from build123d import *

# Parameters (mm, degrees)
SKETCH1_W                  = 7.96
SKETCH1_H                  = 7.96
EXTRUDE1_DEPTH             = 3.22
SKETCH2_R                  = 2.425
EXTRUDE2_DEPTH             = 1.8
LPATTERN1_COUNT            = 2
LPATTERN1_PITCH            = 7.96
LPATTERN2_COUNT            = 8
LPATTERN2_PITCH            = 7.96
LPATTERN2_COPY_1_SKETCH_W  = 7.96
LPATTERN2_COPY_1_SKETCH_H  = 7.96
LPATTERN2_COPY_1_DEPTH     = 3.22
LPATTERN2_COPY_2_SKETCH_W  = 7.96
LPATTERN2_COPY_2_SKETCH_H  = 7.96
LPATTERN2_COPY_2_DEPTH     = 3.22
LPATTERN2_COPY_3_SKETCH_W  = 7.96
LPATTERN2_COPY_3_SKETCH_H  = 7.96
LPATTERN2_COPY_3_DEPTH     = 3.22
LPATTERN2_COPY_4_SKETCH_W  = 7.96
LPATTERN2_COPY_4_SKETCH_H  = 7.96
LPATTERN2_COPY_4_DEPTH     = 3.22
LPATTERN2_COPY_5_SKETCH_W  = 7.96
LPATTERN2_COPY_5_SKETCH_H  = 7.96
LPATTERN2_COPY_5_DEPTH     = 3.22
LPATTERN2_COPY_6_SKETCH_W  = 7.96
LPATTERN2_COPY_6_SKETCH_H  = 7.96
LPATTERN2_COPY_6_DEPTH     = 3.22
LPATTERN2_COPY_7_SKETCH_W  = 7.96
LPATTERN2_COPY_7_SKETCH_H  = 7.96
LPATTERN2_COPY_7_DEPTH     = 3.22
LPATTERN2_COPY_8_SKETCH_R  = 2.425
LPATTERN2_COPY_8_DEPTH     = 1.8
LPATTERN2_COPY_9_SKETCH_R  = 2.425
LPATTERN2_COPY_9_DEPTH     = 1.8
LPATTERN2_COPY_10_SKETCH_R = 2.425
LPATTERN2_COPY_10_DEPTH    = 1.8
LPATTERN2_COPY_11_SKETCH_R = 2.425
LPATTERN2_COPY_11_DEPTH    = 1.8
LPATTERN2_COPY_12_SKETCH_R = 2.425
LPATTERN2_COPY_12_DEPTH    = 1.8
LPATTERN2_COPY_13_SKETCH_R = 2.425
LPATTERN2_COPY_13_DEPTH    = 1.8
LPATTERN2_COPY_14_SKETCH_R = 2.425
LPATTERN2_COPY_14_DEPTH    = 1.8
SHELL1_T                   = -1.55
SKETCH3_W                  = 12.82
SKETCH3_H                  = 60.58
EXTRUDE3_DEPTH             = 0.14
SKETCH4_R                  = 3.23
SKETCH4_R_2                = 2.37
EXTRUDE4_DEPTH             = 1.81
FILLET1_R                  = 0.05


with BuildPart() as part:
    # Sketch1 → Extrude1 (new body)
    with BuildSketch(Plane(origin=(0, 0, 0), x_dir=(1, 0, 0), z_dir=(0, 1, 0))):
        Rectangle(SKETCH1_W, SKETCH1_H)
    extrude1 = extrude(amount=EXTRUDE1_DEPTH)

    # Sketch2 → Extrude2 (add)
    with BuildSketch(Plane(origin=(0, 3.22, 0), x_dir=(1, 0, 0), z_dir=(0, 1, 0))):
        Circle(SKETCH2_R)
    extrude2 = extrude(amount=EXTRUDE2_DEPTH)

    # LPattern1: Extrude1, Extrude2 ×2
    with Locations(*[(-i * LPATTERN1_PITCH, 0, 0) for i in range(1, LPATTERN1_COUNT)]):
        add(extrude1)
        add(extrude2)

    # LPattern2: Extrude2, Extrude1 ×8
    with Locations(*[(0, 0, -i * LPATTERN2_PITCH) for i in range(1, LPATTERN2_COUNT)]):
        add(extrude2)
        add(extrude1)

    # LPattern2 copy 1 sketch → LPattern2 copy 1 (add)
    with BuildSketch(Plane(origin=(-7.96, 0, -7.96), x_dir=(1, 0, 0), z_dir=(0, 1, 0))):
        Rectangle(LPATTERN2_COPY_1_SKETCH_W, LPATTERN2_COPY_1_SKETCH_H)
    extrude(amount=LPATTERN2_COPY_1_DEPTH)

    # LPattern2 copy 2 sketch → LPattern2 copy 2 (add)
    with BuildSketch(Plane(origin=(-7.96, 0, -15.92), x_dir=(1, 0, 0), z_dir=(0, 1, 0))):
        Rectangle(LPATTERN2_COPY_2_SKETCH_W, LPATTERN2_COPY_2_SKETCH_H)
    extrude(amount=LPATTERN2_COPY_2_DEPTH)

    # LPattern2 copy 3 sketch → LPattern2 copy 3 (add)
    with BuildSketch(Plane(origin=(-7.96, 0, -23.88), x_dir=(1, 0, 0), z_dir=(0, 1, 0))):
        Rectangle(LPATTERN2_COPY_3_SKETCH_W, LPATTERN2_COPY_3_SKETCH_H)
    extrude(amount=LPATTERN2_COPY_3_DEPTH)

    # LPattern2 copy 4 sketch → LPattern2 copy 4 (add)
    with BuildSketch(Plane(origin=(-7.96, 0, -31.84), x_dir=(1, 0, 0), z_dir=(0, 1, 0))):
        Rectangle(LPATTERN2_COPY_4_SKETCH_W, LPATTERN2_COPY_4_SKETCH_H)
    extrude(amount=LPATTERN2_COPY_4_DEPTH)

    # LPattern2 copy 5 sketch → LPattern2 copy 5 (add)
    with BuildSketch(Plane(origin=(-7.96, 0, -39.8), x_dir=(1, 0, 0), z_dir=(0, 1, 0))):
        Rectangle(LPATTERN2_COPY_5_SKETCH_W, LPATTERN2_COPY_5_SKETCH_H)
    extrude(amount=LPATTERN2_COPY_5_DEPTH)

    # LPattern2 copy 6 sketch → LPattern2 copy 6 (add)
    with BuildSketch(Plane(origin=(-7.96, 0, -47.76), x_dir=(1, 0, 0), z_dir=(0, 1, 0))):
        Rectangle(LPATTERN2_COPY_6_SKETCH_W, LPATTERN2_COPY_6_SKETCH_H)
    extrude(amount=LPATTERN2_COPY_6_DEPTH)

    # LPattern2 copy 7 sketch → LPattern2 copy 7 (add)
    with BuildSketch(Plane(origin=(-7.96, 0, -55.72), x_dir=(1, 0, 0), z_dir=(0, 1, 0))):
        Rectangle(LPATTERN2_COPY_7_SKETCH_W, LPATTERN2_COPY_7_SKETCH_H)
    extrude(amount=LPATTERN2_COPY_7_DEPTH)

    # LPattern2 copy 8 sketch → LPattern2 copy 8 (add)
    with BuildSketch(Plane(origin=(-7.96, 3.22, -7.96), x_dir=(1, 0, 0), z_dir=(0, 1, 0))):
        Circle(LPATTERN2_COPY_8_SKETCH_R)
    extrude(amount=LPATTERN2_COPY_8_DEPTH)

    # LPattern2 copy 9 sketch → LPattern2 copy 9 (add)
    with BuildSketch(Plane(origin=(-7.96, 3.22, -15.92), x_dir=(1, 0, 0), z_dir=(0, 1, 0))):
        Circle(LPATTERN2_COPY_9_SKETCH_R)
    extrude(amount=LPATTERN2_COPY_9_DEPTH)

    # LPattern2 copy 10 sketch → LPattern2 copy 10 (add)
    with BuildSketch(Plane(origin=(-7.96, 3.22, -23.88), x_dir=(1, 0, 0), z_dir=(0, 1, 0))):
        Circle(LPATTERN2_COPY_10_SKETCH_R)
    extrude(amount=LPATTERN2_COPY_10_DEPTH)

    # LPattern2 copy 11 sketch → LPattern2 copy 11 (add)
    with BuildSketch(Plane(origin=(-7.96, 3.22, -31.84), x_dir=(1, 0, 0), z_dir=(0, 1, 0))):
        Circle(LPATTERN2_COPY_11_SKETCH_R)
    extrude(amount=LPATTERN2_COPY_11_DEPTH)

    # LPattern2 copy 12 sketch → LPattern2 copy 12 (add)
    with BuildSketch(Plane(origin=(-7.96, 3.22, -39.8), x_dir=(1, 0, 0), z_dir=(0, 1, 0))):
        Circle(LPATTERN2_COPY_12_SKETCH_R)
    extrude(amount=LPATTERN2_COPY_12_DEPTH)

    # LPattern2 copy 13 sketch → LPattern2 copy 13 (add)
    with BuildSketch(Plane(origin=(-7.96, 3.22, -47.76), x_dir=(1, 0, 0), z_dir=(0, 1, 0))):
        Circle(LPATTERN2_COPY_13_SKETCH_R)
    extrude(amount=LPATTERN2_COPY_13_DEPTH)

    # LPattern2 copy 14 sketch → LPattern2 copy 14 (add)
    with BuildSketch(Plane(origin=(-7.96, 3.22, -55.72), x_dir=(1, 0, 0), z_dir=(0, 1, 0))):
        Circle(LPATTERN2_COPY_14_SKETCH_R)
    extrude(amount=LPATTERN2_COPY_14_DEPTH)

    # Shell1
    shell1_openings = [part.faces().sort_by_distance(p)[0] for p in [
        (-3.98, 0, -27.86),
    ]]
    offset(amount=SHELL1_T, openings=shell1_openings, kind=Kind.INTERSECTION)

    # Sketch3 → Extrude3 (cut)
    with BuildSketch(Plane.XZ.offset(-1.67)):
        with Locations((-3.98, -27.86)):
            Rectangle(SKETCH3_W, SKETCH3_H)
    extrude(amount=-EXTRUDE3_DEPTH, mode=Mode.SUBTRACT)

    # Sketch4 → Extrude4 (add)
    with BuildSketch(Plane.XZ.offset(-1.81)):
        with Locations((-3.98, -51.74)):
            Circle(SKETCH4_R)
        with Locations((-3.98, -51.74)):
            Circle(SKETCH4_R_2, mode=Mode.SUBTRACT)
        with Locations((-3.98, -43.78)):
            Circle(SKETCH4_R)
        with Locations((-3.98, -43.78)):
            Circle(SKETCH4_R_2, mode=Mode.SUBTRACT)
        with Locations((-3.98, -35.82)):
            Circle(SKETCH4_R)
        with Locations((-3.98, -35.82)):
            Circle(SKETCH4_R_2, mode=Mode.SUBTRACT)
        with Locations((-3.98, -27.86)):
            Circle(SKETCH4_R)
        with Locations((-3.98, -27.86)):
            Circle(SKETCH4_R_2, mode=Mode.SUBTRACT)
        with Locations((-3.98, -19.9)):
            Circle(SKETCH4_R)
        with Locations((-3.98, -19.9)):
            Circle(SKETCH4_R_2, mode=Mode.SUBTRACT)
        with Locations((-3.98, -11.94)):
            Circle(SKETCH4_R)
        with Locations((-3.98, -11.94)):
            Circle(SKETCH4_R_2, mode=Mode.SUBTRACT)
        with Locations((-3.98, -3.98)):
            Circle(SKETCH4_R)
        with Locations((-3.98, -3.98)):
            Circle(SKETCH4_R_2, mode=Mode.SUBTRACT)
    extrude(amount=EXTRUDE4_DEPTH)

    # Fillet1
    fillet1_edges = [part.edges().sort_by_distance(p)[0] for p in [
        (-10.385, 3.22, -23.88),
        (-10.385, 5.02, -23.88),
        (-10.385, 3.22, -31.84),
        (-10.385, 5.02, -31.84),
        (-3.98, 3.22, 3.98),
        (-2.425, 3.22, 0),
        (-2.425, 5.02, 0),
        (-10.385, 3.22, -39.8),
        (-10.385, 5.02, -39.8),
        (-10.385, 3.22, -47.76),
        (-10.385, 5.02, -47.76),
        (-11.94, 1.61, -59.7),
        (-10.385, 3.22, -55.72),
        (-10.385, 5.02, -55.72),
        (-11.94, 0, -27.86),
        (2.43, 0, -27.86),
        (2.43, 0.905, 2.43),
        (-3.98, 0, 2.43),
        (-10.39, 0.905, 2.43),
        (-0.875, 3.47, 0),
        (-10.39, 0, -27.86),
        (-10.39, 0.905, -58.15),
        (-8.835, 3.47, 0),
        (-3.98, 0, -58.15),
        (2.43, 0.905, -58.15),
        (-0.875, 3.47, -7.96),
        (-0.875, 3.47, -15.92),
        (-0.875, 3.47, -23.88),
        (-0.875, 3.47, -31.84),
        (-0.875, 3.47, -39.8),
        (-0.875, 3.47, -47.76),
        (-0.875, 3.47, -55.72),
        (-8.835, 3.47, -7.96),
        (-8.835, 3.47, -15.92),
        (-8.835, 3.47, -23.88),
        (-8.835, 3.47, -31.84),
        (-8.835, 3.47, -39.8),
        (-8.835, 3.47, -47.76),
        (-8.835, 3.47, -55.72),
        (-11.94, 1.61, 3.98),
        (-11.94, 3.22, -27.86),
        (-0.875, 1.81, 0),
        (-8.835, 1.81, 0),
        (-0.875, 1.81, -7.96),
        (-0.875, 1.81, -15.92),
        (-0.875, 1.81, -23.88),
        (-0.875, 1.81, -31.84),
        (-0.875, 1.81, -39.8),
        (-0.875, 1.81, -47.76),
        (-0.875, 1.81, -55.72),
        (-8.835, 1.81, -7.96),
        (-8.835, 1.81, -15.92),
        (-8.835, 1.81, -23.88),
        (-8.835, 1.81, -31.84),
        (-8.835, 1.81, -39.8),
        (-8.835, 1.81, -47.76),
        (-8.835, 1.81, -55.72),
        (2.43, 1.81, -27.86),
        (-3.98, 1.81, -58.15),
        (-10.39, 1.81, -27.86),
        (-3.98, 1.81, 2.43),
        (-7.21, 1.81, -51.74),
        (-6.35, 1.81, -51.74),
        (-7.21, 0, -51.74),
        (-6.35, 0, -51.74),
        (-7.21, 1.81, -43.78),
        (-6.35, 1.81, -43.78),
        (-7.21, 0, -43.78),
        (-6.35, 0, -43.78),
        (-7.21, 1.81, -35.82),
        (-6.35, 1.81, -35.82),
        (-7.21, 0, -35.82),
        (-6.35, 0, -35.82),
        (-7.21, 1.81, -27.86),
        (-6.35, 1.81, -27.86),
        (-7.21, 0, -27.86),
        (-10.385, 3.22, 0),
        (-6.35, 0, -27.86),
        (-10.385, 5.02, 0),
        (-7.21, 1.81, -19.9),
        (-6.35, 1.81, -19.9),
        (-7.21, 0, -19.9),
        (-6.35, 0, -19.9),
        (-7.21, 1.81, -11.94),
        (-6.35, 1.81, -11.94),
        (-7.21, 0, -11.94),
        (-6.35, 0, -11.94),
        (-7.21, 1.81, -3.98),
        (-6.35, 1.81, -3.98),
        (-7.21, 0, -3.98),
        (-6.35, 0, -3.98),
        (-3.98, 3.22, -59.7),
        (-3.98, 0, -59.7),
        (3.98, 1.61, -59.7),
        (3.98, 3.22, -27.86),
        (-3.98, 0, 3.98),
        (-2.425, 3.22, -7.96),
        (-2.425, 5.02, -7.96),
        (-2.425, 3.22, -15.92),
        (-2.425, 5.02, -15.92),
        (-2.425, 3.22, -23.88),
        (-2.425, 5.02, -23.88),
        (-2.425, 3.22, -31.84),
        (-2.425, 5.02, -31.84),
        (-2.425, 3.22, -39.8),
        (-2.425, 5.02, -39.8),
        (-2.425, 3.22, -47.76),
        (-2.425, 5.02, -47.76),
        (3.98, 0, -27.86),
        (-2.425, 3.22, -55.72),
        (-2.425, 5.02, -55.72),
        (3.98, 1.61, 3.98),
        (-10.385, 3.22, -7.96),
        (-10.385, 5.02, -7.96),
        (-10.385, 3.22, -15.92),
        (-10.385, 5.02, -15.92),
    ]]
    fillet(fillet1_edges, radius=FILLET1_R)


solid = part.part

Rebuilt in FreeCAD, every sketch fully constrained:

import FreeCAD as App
import Part
import Sketcher

V = App.Vector
Q = App.Units.Quantity


def faces_at(feature, points):
    """Names of the faces that lie closest to the given points."""
    faces = feature.Shape.Faces
    near = lambda p: min(range(len(faces)), key=lambda i: faces[i].distToShape(Part.Vertex(*p))[0])
    return sorted({f"Face{near(p) + 1}" for p in points})

doc = App.newDocument("Part")
params = doc.addObject("Spreadsheet::Sheet", "Params")
for row, (alias, value) in enumerate([
    ("sketch1_width", "7.96 mm"),
    ("pad1_length", "3.22 mm"),
    ("sketch2_diameter", "4.85 mm"),
    ("pad2_length", "1.8 mm"),
    ("linearpattern_pitch", "7.96 mm"),
    ("linearpattern2_pitch", "7.96 mm"),
    ("sketch3_width", "7.96 mm"),
    ("pad3_length", "3.22 mm"),
    ("sketch4_width", "7.96 mm"),
    ("pad4_length", "3.22 mm"),
    ("sketch5_width", "7.96 mm"),
    ("pad5_length", "3.22 mm"),
    ("sketch6_width", "7.96 mm"),
    ("pad6_length", "3.22 mm"),
    ("sketch7_width", "7.96 mm"),
    ("pad7_length", "3.22 mm"),
    ("sketch8_width", "7.96 mm"),
    ("pad8_length", "3.22 mm"),
    ("sketch9_width", "7.96 mm"),
    ("pad9_length", "3.22 mm"),
    ("sketch10_diameter", "4.85 mm"),
    ("pad10_length", "1.8 mm"),
    ("sketch11_diameter", "4.85 mm"),
    ("pad11_length", "1.8 mm"),
    ("sketch12_diameter", "4.85 mm"),
    ("pad12_length", "1.8 mm"),
    ("sketch13_diameter", "4.85 mm"),
    ("pad13_length", "1.8 mm"),
    ("sketch14_diameter", "4.85 mm"),
    ("pad14_length", "1.8 mm"),
    ("sketch15_diameter", "4.85 mm"),
    ("pad15_length", "1.8 mm"),
    ("sketch16_diameter", "4.85 mm"),
    ("pad16_length", "1.8 mm"),
    ("thickness_wall", "1.55 mm"),
    ("sketch17_width", "12.82 mm"),
    ("sketch17_height", "60.58 mm"),
    ("pocket1_length", "0.14 mm"),
    ("sketch18_diameter", "6.46 mm"),
    ("sketch18_diameter2", "4.74 mm"),
    ("pad17_length", "1.81 mm"),
    ("fillet_radius", "0.05 mm"),
], start=1):
    params.set(f"A{row}", alias)
    params.set(f"B{row}", "=" + value)
    params.setAlias(f"B{row}", alias)

body = doc.addObject("PartDesign::Body", "Body")

# Sketch on XZ plane
sketch1 = doc.addObject("Sketcher::SketchObject", "Sketch")
body.addObject(sketch1)
sketch1.AttachmentSupport = (doc.XZ_Plane, [""])
sketch1.MapMode = "FlatFace"
sketch1.addGeometry(Part.LineSegment(V(-4, -4, 0), V(-4, 4, 0)), False)
sketch1.addGeometry(Part.LineSegment(V(-4, 4, 0), V(4, 4, 0)), False)
sketch1.addGeometry(Part.LineSegment(V(4, 4, 0), V(4, -4, 0)), False)
sketch1.addGeometry(Part.LineSegment(V(4, -4, 0), V(-4, -4, 0)), False)
sketch1.addConstraint(Sketcher.Constraint("Coincident", 0, 2, 1, 1))
sketch1.addConstraint(Sketcher.Constraint("Coincident", 1, 2, 2, 1))
sketch1.addConstraint(Sketcher.Constraint("Coincident", 2, 2, 3, 1))
sketch1.addConstraint(Sketcher.Constraint("Coincident", 3, 2, 0, 1))
sketch1.addConstraint(Sketcher.Constraint("Vertical", 0))
sketch1.addConstraint(Sketcher.Constraint("Horizontal", 1))
sketch1.addConstraint(Sketcher.Constraint("Vertical", 2))
sketch1.addConstraint(Sketcher.Constraint("Horizontal", 3))
sketch1.addConstraint(Sketcher.Constraint("Symmetric", 0, 2, 2, 2, -1, 1))
sketch1.addConstraint(Sketcher.Constraint("Equal", 3, 0))
sketch1.addConstraint(Sketcher.Constraint("DistanceX", 1, 1, 1, 2, Q("7.96 mm")))
sketch1.setExpression("Constraints[10]", "Params.sketch1_width")
pad1 = doc.addObject("PartDesign::Pad", "Pad")
body.addObject(pad1)
pad1.Profile = sketch1
pad1.setExpression("Length", "Params.pad1_length")
pad1.Reversed = True

# Sketch on XZ plane
sketch2 = doc.addObject("Sketcher::SketchObject", "Sketch001")
body.addObject(sketch2)
sketch2.AttachmentSupport = (doc.XZ_Plane, [""])
sketch2.MapMode = "FlatFace"
sketch2.AttachmentOffset = App.Placement(V(0, 0, -3.22), App.Rotation())
sketch2.addGeometry(Part.Circle(V(0, 0, 0), V(0, 0, 1), 2.4), False)
sketch2.addConstraint(Sketcher.Constraint("Coincident", 0, 3, -1, 1))
sketch2.addConstraint(Sketcher.Constraint("Diameter", 0, Q("4.85 mm")))
sketch2.setExpression("Constraints[1]", "Params.sketch2_diameter")
pad2 = doc.addObject("PartDesign::Pad", "Pad001")
body.addObject(pad2)
pad2.Profile = sketch2
pad2.setExpression("Length", "Params.pad2_length")
pad2.Reversed = True
doc.recompute()

linearpattern = doc.addObject("PartDesign::LinearPattern", "LinearPattern")
body.addObject(linearpattern)
linearpattern.Originals = [pad1, pad2]
linearpattern.Direction = (doc.X_Axis, [""])
linearpattern.Mode = "offset"
linearpattern.setExpression("Offset", "Params.linearpattern_pitch")
linearpattern.Occurrences = 2
linearpattern.Reversed = True
body.Tip = linearpattern
doc.recompute()

linearpattern2 = doc.addObject("PartDesign::LinearPattern", "LinearPattern001")
body.addObject(linearpattern2)
linearpattern2.Originals = [pad2, pad1]
linearpattern2.Direction = (doc.Z_Axis, [""])
linearpattern2.Mode = "offset"
linearpattern2.setExpression("Offset", "Params.linearpattern2_pitch")
linearpattern2.Occurrences = 8
linearpattern2.Reversed = True
body.Tip = linearpattern2

# Sketch on XZ plane
sketch3 = doc.addObject("Sketcher::SketchObject", "Sketch002")
body.addObject(sketch3)
sketch3.AttachmentSupport = (doc.XZ_Plane, [""])
sketch3.MapMode = "FlatFace"
sketch3.addGeometry(Part.LineSegment(V(-12, -12, 0), V(-12, -4, 0)), False)
sketch3.addGeometry(Part.LineSegment(V(-12, -4, 0), V(-4, -4, 0)), False)
sketch3.addGeometry(Part.LineSegment(V(-4, -4, 0), V(-4, -12, 0)), False)
sketch3.addGeometry(Part.LineSegment(V(-4, -12, 0), V(-12, -12, 0)), False)
sketch3.addConstraint(Sketcher.Constraint("Coincident", 0, 2, 1, 1))
sketch3.addConstraint(Sketcher.Constraint("Coincident", 1, 2, 2, 1))
sketch3.addConstraint(Sketcher.Constraint("Coincident", 2, 2, 3, 1))
sketch3.addConstraint(Sketcher.Constraint("Coincident", 3, 2, 0, 1))
sketch3.addConstraint(Sketcher.Constraint("Vertical", 0))
sketch3.addConstraint(Sketcher.Constraint("Horizontal", 1))
sketch3.addConstraint(Sketcher.Constraint("Vertical", 2))
sketch3.addConstraint(Sketcher.Constraint("Horizontal", 3))
sketch3.addConstraint(Sketcher.Constraint("Equal", 3, 0))
sketch3.addConstraint(Sketcher.Constraint("DistanceX", 1, 1, 1, 2, Q("7.96 mm")))
sketch3.addConstraint(Sketcher.Constraint("DistanceX", 0, 2, -1, 1, Q("11.94 mm")))
sketch3.addConstraint(Sketcher.Constraint("DistanceY", 0, 2, -1, 1, Q("3.98 mm")))
sketch3.setExpression("Constraints[9]", "Params.sketch3_width")
pad3 = doc.addObject("PartDesign::Pad", "Pad002")
body.addObject(pad3)
pad3.Profile = sketch3
pad3.setExpression("Length", "Params.pad3_length")
pad3.Reversed = True

# Sketch on XZ plane
sketch4 = doc.addObject("Sketcher::SketchObject", "Sketch003")
body.addObject(sketch4)
sketch4.AttachmentSupport = (doc.XZ_Plane, [""])
sketch4.MapMode = "FlatFace"
sketch4.addGeometry(Part.LineSegment(V(-12, -20, 0), V(-12, -12, 0)), False)
sketch4.addGeometry(Part.LineSegment(V(-12, -12, 0), V(-4, -12, 0)), False)
sketch4.addGeometry(Part.LineSegment(V(-4, -12, 0), V(-4, -20, 0)), False)
sketch4.addGeometry(Part.LineSegment(V(-4, -20, 0), V(-12, -20, 0)), False)
sketch4.addConstraint(Sketcher.Constraint("Coincident", 0, 2, 1, 1))
sketch4.addConstraint(Sketcher.Constraint("Coincident", 1, 2, 2, 1))
sketch4.addConstraint(Sketcher.Constraint("Coincident", 2, 2, 3, 1))
sketch4.addConstraint(Sketcher.Constraint("Coincident", 3, 2, 0, 1))
sketch4.addConstraint(Sketcher.Constraint("Vertical", 0))
sketch4.addConstraint(Sketcher.Constraint("Horizontal", 1))
sketch4.addConstraint(Sketcher.Constraint("Vertical", 2))
sketch4.addConstraint(Sketcher.Constraint("Horizontal", 3))
sketch4.addConstraint(Sketcher.Constraint("Equal", 3, 0))
sketch4.addConstraint(Sketcher.Constraint("DistanceX", 1, 1, 1, 2, Q("7.96 mm")))
sketch4.addConstraint(Sketcher.Constraint("DistanceY", 2, 2, -1, 1, Q("19.9 mm")))
sketch4.addConstraint(Sketcher.Constraint("DistanceX", 0, 2, -1, 1, Q("11.94 mm")))
sketch4.setExpression("Constraints[9]", "Params.sketch4_width")
pad4 = doc.addObject("PartDesign::Pad", "Pad003")
body.addObject(pad4)
pad4.Profile = sketch4
pad4.setExpression("Length", "Params.pad4_length")
pad4.Reversed = True

# Sketch on XZ plane
sketch5 = doc.addObject("Sketcher::SketchObject", "Sketch004")
body.addObject(sketch5)
sketch5.AttachmentSupport = (doc.XZ_Plane, [""])
sketch5.MapMode = "FlatFace"
sketch5.addGeometry(Part.LineSegment(V(-12, -28, 0), V(-12, -20, 0)), False)
sketch5.addGeometry(Part.LineSegment(V(-12, -20, 0), V(-4, -20, 0)), False)
sketch5.addGeometry(Part.LineSegment(V(-4, -20, 0), V(-4, -28, 0)), False)
sketch5.addGeometry(Part.LineSegment(V(-4, -28, 0), V(-12, -28, 0)), False)
sketch5.addConstraint(Sketcher.Constraint("Coincident", 0, 2, 1, 1))
sketch5.addConstraint(Sketcher.Constraint("Coincident", 1, 2, 2, 1))
sketch5.addConstraint(Sketcher.Constraint("Coincident", 2, 2, 3, 1))
sketch5.addConstraint(Sketcher.Constraint("Coincident", 3, 2, 0, 1))
sketch5.addConstraint(Sketcher.Constraint("Vertical", 0))
sketch5.addConstraint(Sketcher.Constraint("Horizontal", 1))
sketch5.addConstraint(Sketcher.Constraint("Vertical", 2))
sketch5.addConstraint(Sketcher.Constraint("Horizontal", 3))
sketch5.addConstraint(Sketcher.Constraint("Equal", 3, 0))
sketch5.addConstraint(Sketcher.Constraint("DistanceX", 1, 1, 1, 2, Q("7.96 mm")))
sketch5.addConstraint(Sketcher.Constraint("DistanceY", 0, 2, -1, 1, Q("19.9 mm")))
sketch5.addConstraint(Sketcher.Constraint("DistanceX", 0, 2, -1, 1, Q("11.94 mm")))
sketch5.setExpression("Constraints[9]", "Params.sketch5_width")
pad5 = doc.addObject("PartDesign::Pad", "Pad004")
body.addObject(pad5)
pad5.Profile = sketch5
pad5.setExpression("Length", "Params.pad5_length")
pad5.Reversed = True

# Sketch on XZ plane
sketch6 = doc.addObject("Sketcher::SketchObject", "Sketch005")
body.addObject(sketch6)
sketch6.AttachmentSupport = (doc.XZ_Plane, [""])
sketch6.MapMode = "FlatFace"
sketch6.addGeometry(Part.LineSegment(V(-12, -36, 0), V(-12, -28, 0)), False)
sketch6.addGeometry(Part.LineSegment(V(-12, -28, 0), V(-4, -28, 0)), False)
sketch6.addGeometry(Part.LineSegment(V(-4, -28, 0), V(-4, -36, 0)), False)
sketch6.addGeometry(Part.LineSegment(V(-4, -36, 0), V(-12, -36, 0)), False)
sketch6.addConstraint(Sketcher.Constraint("Coincident", 0, 2, 1, 1))
sketch6.addConstraint(Sketcher.Constraint("Coincident", 1, 2, 2, 1))
sketch6.addConstraint(Sketcher.Constraint("Coincident", 2, 2, 3, 1))
sketch6.addConstraint(Sketcher.Constraint("Coincident", 3, 2, 0, 1))
sketch6.addConstraint(Sketcher.Constraint("Vertical", 0))
sketch6.addConstraint(Sketcher.Constraint("Horizontal", 1))
sketch6.addConstraint(Sketcher.Constraint("Vertical", 2))
sketch6.addConstraint(Sketcher.Constraint("Horizontal", 3))
sketch6.addConstraint(Sketcher.Constraint("Equal", 3, 0))
sketch6.addConstraint(Sketcher.Constraint("DistanceX", 1, 1, 1, 2, Q("7.96 mm")))
sketch6.addConstraint(Sketcher.Constraint("DistanceX", 0, 2, -1, 1, Q("11.94 mm")))
sketch6.addConstraint(Sketcher.Constraint("DistanceY", 0, 2, -1, 1, Q("27.86 mm")))
sketch6.setExpression("Constraints[9]", "Params.sketch6_width")
pad6 = doc.addObject("PartDesign::Pad", "Pad005")
body.addObject(pad6)
pad6.Profile = sketch6
pad6.setExpression("Length", "Params.pad6_length")
pad6.Reversed = True

# Sketch on XZ plane
sketch7 = doc.addObject("Sketcher::SketchObject", "Sketch006")
body.addObject(sketch7)
sketch7.AttachmentSupport = (doc.XZ_Plane, [""])
sketch7.MapMode = "FlatFace"
sketch7.addGeometry(Part.LineSegment(V(-12, -44, 0), V(-12, -36, 0)), False)
sketch7.addGeometry(Part.LineSegment(V(-12, -36, 0), V(-4, -36, 0)), False)
sketch7.addGeometry(Part.LineSegment(V(-4, -36, 0), V(-4, -44, 0)), False)
sketch7.addGeometry(Part.LineSegment(V(-4, -44, 0), V(-12, -44, 0)), False)
sketch7.addConstraint(Sketcher.Constraint("Coincident", 0, 2, 1, 1))
sketch7.addConstraint(Sketcher.Constraint("Coincident", 1, 2, 2, 1))
sketch7.addConstraint(Sketcher.Constraint("Coincident", 2, 2, 3, 1))
sketch7.addConstraint(Sketcher.Constraint("Coincident", 3, 2, 0, 1))
sketch7.addConstraint(Sketcher.Constraint("Vertical", 0))
sketch7.addConstraint(Sketcher.Constraint("Horizontal", 1))
sketch7.addConstraint(Sketcher.Constraint("Vertical", 2))
sketch7.addConstraint(Sketcher.Constraint("Horizontal", 3))
sketch7.addConstraint(Sketcher.Constraint("Equal", 3, 0))
sketch7.addConstraint(Sketcher.Constraint("DistanceX", 1, 1, 1, 2, Q("7.96 mm")))
sketch7.addConstraint(Sketcher.Constraint("DistanceX", 0, 2, -1, 1, Q("11.94 mm")))
sketch7.addConstraint(Sketcher.Constraint("DistanceY", 0, 2, -1, 1, Q("35.82 mm")))
sketch7.setExpression("Constraints[9]", "Params.sketch7_width")
pad7 = doc.addObject("PartDesign::Pad", "Pad006")
body.addObject(pad7)
pad7.Profile = sketch7
pad7.setExpression("Length", "Params.pad7_length")
pad7.Reversed = True

# Sketch on XZ plane
sketch8 = doc.addObject("Sketcher::SketchObject", "Sketch007")
body.addObject(sketch8)
sketch8.AttachmentSupport = (doc.XZ_Plane, [""])
sketch8.MapMode = "FlatFace"
sketch8.addGeometry(Part.LineSegment(V(-12, -52, 0), V(-12, -44, 0)), False)
sketch8.addGeometry(Part.LineSegment(V(-12, -44, 0), V(-4, -44, 0)), False)
sketch8.addGeometry(Part.LineSegment(V(-4, -44, 0), V(-4, -52, 0)), False)
sketch8.addGeometry(Part.LineSegment(V(-4, -52, 0), V(-12, -52, 0)), False)
sketch8.addConstraint(Sketcher.Constraint("Coincident", 0, 2, 1, 1))
sketch8.addConstraint(Sketcher.Constraint("Coincident", 1, 2, 2, 1))
sketch8.addConstraint(Sketcher.Constraint("Coincident", 2, 2, 3, 1))
sketch8.addConstraint(Sketcher.Constraint("Coincident", 3, 2, 0, 1))
sketch8.addConstraint(Sketcher.Constraint("Vertical", 0))
sketch8.addConstraint(Sketcher.Constraint("Horizontal", 1))
sketch8.addConstraint(Sketcher.Constraint("Vertical", 2))
sketch8.addConstraint(Sketcher.Constraint("Horizontal", 3))
sketch8.addConstraint(Sketcher.Constraint("Equal", 3, 0))
sketch8.addConstraint(Sketcher.Constraint("DistanceX", 1, 1, 1, 2, Q("7.96 mm")))
sketch8.addConstraint(Sketcher.Constraint("DistanceX", 0, 2, -1, 1, Q("11.94 mm")))
sketch8.addConstraint(Sketcher.Constraint("DistanceY", 0, 2, -1, 1, Q("43.78 mm")))
sketch8.setExpression("Constraints[9]", "Params.sketch8_width")
pad8 = doc.addObject("PartDesign::Pad", "Pad007")
body.addObject(pad8)
pad8.Profile = sketch8
pad8.setExpression("Length", "Params.pad8_length")
pad8.Reversed = True

# Sketch on XZ plane
sketch9 = doc.addObject("Sketcher::SketchObject", "Sketch008")
body.addObject(sketch9)
sketch9.AttachmentSupport = (doc.XZ_Plane, [""])
sketch9.MapMode = "FlatFace"
sketch9.addGeometry(Part.LineSegment(V(-12, -60, 0), V(-12, -52, 0)), False)
sketch9.addGeometry(Part.LineSegment(V(-12, -52, 0), V(-4, -52, 0)), False)
sketch9.addGeometry(Part.LineSegment(V(-4, -52, 0), V(-4, -60, 0)), False)
sketch9.addGeometry(Part.LineSegment(V(-4, -60, 0), V(-12, -60, 0)), False)
sketch9.addConstraint(Sketcher.Constraint("Coincident", 0, 2, 1, 1))
sketch9.addConstraint(Sketcher.Constraint("Coincident", 1, 2, 2, 1))
sketch9.addConstraint(Sketcher.Constraint("Coincident", 2, 2, 3, 1))
sketch9.addConstraint(Sketcher.Constraint("Coincident", 3, 2, 0, 1))
sketch9.addConstraint(Sketcher.Constraint("Vertical", 0))
sketch9.addConstraint(Sketcher.Constraint("Horizontal", 1))
sketch9.addConstraint(Sketcher.Constraint("Vertical", 2))
sketch9.addConstraint(Sketcher.Constraint("Horizontal", 3))
sketch9.addConstraint(Sketcher.Constraint("Equal", 3, 0))
sketch9.addConstraint(Sketcher.Constraint("DistanceX", 1, 1, 1, 2, Q("7.96 mm")))
sketch9.addConstraint(Sketcher.Constraint("DistanceY", 2, 2, -1, 1, Q("59.7 mm")))
sketch9.addConstraint(Sketcher.Constraint("DistanceX", 0, 2, -1, 1, Q("11.94 mm")))
sketch9.setExpression("Constraints[9]", "Params.sketch9_width")
pad9 = doc.addObject("PartDesign::Pad", "Pad008")
body.addObject(pad9)
pad9.Profile = sketch9
pad9.setExpression("Length", "Params.pad9_length")
pad9.Reversed = True

# Sketch on XZ plane
sketch10 = doc.addObject("Sketcher::SketchObject", "Sketch009")
body.addObject(sketch10)
sketch10.AttachmentSupport = (doc.XZ_Plane, [""])
sketch10.MapMode = "FlatFace"
sketch10.AttachmentOffset = App.Placement(V(0, 0, -3.22), App.Rotation())
sketch10.addGeometry(Part.Circle(V(-8, -8, 0), V(0, 0, 1), 2.4), False)
sketch10.addConstraint(Sketcher.Constraint("Diameter", 0, Q("4.85 mm")))
sketch10.addConstraint(Sketcher.Constraint("DistanceX", 0, 3, -1, 1, Q("7.96 mm")))
sketch10.addConstraint(Sketcher.Constraint("DistanceY", 0, 3, -1, 1, Q("7.96 mm")))
sketch10.setExpression("Constraints[0]", "Params.sketch10_diameter")
pad10 = doc.addObject("PartDesign::Pad", "Pad009")
body.addObject(pad10)
pad10.Profile = sketch10
pad10.setExpression("Length", "Params.pad10_length")
pad10.Reversed = True

# Sketch on XZ plane
sketch11 = doc.addObject("Sketcher::SketchObject", "Sketch010")
body.addObject(sketch11)
sketch11.AttachmentSupport = (doc.XZ_Plane, [""])
sketch11.MapMode = "FlatFace"
sketch11.AttachmentOffset = App.Placement(V(0, 0, -3.22), App.Rotation())
sketch11.addGeometry(Part.Circle(V(-8, -15.9, 0), V(0, 0, 1), 2.4), False)
sketch11.addConstraint(Sketcher.Constraint("Diameter", 0, Q("4.85 mm")))
sketch11.addConstraint(Sketcher.Constraint("DistanceX", 0, 3, -1, 1, Q("7.96 mm")))
sketch11.addConstraint(Sketcher.Constraint("DistanceY", 0, 3, -1, 1, Q("15.92 mm")))
sketch11.setExpression("Constraints[0]", "Params.sketch11_diameter")
pad11 = doc.addObject("PartDesign::Pad", "Pad010")
body.addObject(pad11)
pad11.Profile = sketch11
pad11.setExpression("Length", "Params.pad11_length")
pad11.Reversed = True

# Sketch on XZ plane
sketch12 = doc.addObject("Sketcher::SketchObject", "Sketch011")
body.addObject(sketch12)
sketch12.AttachmentSupport = (doc.XZ_Plane, [""])
sketch12.MapMode = "FlatFace"
sketch12.AttachmentOffset = App.Placement(V(0, 0, -3.22), App.Rotation())
sketch12.addGeometry(Part.Circle(V(-8, -23.9, 0), V(0, 0, 1), 2.4), False)
sketch12.addConstraint(Sketcher.Constraint("Diameter", 0, Q("4.85 mm")))
sketch12.addConstraint(Sketcher.Constraint("DistanceX", 0, 3, -1, 1, Q("7.96 mm")))
sketch12.addConstraint(Sketcher.Constraint("DistanceY", 0, 3, -1, 1, Q("23.88 mm")))
sketch12.setExpression("Constraints[0]", "Params.sketch12_diameter")
pad12 = doc.addObject("PartDesign::Pad", "Pad011")
body.addObject(pad12)
pad12.Profile = sketch12
pad12.setExpression("Length", "Params.pad12_length")
pad12.Reversed = True

# Sketch on XZ plane
sketch13 = doc.addObject("Sketcher::SketchObject", "Sketch012")
body.addObject(sketch13)
sketch13.AttachmentSupport = (doc.XZ_Plane, [""])
sketch13.MapMode = "FlatFace"
sketch13.AttachmentOffset = App.Placement(V(0, 0, -3.22), App.Rotation())
sketch13.addGeometry(Part.Circle(V(-8, -31.8, 0), V(0, 0, 1), 2.4), False)
sketch13.addConstraint(Sketcher.Constraint("Diameter", 0, Q("4.85 mm")))
sketch13.addConstraint(Sketcher.Constraint("DistanceX", 0, 3, -1, 1, Q("7.96 mm")))
sketch13.addConstraint(Sketcher.Constraint("DistanceY", 0, 3, -1, 1, Q("31.84 mm")))
sketch13.setExpression("Constraints[0]", "Params.sketch13_diameter")
pad13 = doc.addObject("PartDesign::Pad", "Pad012")
body.addObject(pad13)
pad13.Profile = sketch13
pad13.setExpression("Length", "Params.pad13_length")
pad13.Reversed = True

# Sketch on XZ plane
sketch14 = doc.addObject("Sketcher::SketchObject", "Sketch013")
body.addObject(sketch14)
sketch14.AttachmentSupport = (doc.XZ_Plane, [""])
sketch14.MapMode = "FlatFace"
sketch14.AttachmentOffset = App.Placement(V(0, 0, -3.22), App.Rotation())
sketch14.addGeometry(Part.Circle(V(-8, -39.8, 0), V(0, 0, 1), 2.4), False)
sketch14.addConstraint(Sketcher.Constraint("Diameter", 0, Q("4.85 mm")))
sketch14.addConstraint(Sketcher.Constraint("DistanceY", 0, 3, -1, 1, Q("39.8 mm")))
sketch14.addConstraint(Sketcher.Constraint("DistanceX", 0, 3, -1, 1, Q("7.96 mm")))
sketch14.setExpression("Constraints[0]", "Params.sketch14_diameter")
pad14 = doc.addObject("PartDesign::Pad", "Pad013")
body.addObject(pad14)
pad14.Profile = sketch14
pad14.setExpression("Length", "Params.pad14_length")
pad14.Reversed = True

# Sketch on XZ plane
sketch15 = doc.addObject("Sketcher::SketchObject", "Sketch014")
body.addObject(sketch15)
sketch15.AttachmentSupport = (doc.XZ_Plane, [""])
sketch15.MapMode = "FlatFace"
sketch15.AttachmentOffset = App.Placement(V(0, 0, -3.22), App.Rotation())
sketch15.addGeometry(Part.Circle(V(-8, -47.8, 0), V(0, 0, 1), 2.4), False)
sketch15.addConstraint(Sketcher.Constraint("Diameter", 0, Q("4.85 mm")))
sketch15.addConstraint(Sketcher.Constraint("DistanceX", 0, 3, -1, 1, Q("7.96 mm")))
sketch15.addConstraint(Sketcher.Constraint("DistanceY", 0, 3, -1, 1, Q("47.76 mm")))
sketch15.setExpression("Constraints[0]", "Params.sketch15_diameter")
pad15 = doc.addObject("PartDesign::Pad", "Pad014")
body.addObject(pad15)
pad15.Profile = sketch15
pad15.setExpression("Length", "Params.pad15_length")
pad15.Reversed = True

# Sketch on XZ plane
sketch16 = doc.addObject("Sketcher::SketchObject", "Sketch015")
body.addObject(sketch16)
sketch16.AttachmentSupport = (doc.XZ_Plane, [""])
sketch16.MapMode = "FlatFace"
sketch16.AttachmentOffset = App.Placement(V(0, 0, -3.22), App.Rotation())
sketch16.addGeometry(Part.Circle(V(-8, -55.7, 0), V(0, 0, 1), 2.4), False)
sketch16.addConstraint(Sketcher.Constraint("Diameter", 0, Q("4.85 mm")))
sketch16.addConstraint(Sketcher.Constraint("DistanceX", 0, 3, -1, 1, Q("7.96 mm")))
sketch16.addConstraint(Sketcher.Constraint("DistanceY", 0, 3, -1, 1, Q("55.72 mm")))
sketch16.setExpression("Constraints[0]", "Params.sketch16_diameter")
pad16 = doc.addObject("PartDesign::Pad", "Pad015")
body.addObject(pad16)
pad16.Profile = sketch16
pad16.setExpression("Length", "Params.pad16_length")
pad16.Reversed = True
doc.recompute()

thickness = doc.addObject("PartDesign::Thickness", "Thickness")
body.addObject(thickness)
thickness.Base = (pad16, faces_at(pad16, [(-3.98, 0, -27.86)]))
thickness.setExpression("Value", "Params.thickness_wall")
thickness.Reversed = True
thickness.Join = "Intersection"

# Sketch on XZ plane
sketch17 = doc.addObject("Sketcher::SketchObject", "Sketch016")
body.addObject(sketch17)
sketch17.AttachmentSupport = (doc.XZ_Plane, [""])
sketch17.MapMode = "FlatFace"
sketch17.AttachmentOffset = App.Placement(V(0, 0, -1.67), App.Rotation())
sketch17.addGeometry(Part.LineSegment(V(-10, 2, 0), V(-10, -58, 0)), False)
sketch17.addGeometry(Part.LineSegment(V(-10, -58, 0), V(2, -58, 0)), False)
sketch17.addGeometry(Part.LineSegment(V(2, -58, 0), V(2, 2, 0)), False)
sketch17.addGeometry(Part.LineSegment(V(2, 2, 0), V(-10, 2, 0)), False)
sketch17.addConstraint(Sketcher.Constraint("Coincident", 0, 2, 1, 1))
sketch17.addConstraint(Sketcher.Constraint("Coincident", 1, 2, 2, 1))
sketch17.addConstraint(Sketcher.Constraint("Coincident", 2, 2, 3, 1))
sketch17.addConstraint(Sketcher.Constraint("Coincident", 3, 2, 0, 1))
sketch17.addConstraint(Sketcher.Constraint("Vertical", 0))
sketch17.addConstraint(Sketcher.Constraint("Horizontal", 1))
sketch17.addConstraint(Sketcher.Constraint("Vertical", 2))
sketch17.addConstraint(Sketcher.Constraint("Horizontal", 3))
sketch17.addConstraint(Sketcher.Constraint("DistanceX", 1, 1, 1, 2, Q("12.82 mm")))
sketch17.addConstraint(Sketcher.Constraint("DistanceY", 0, 2, 0, 1, Q("60.58 mm")))
sketch17.addConstraint(Sketcher.Constraint("DistanceX", 0, 2, -1, 1, Q("10.39 mm")))
sketch17.addConstraint(Sketcher.Constraint("DistanceY", 0, 2, -1, 1, Q("58.15 mm")))
sketch17.setExpression("Constraints[8]", "Params.sketch17_width")
sketch17.setExpression("Constraints[9]", "Params.sketch17_height")
pocket1 = doc.addObject("PartDesign::Pocket", "Pocket")
body.addObject(pocket1)
pocket1.Profile = sketch17
pocket1.setExpression("Length", "Params.pocket1_length")

# Sketch on XZ plane
sketch18 = doc.addObject("Sketcher::SketchObject", "Sketch017")
body.addObject(sketch18)
sketch18.AttachmentSupport = (doc.XZ_Plane, [""])
sketch18.MapMode = "FlatFace"
sketch18.AttachmentOffset = App.Placement(V(0, 0, -1.81), App.Rotation())
sketch18.addGeometry(Part.Circle(V(-4, -51.7, 0), V(0, 0, 1), 3.2), False)
sketch18.addGeometry(Part.Circle(V(-4, -51.7, 0), V(0, 0, 1), 2.4), False)
sketch18.addGeometry(Part.Circle(V(-4, -43.8, 0), V(0, 0, 1), 3.2), False)
sketch18.addGeometry(Part.Circle(V(-4, -43.8, 0), V(0, 0, 1), 2.4), False)
sketch18.addGeometry(Part.Circle(V(-4, -35.8, 0), V(0, 0, 1), 3.2), False)
sketch18.addGeometry(Part.Circle(V(-4, -35.8, 0), V(0, 0, 1), 2.4), False)
sketch18.addGeometry(Part.Circle(V(-4, -27.9, 0), V(0, 0, 1), 3.2), False)
sketch18.addGeometry(Part.Circle(V(-4, -27.9, 0), V(0, 0, 1), 2.4), False)
sketch18.addGeometry(Part.Circle(V(-4, -19.9, 0), V(0, 0, 1), 3.2), False)
sketch18.addGeometry(Part.Circle(V(-4, -19.9, 0), V(0, 0, 1), 2.4), False)
sketch18.addGeometry(Part.Circle(V(-4, -11.9, 0), V(0, 0, 1), 3.2), False)
sketch18.addGeometry(Part.Circle(V(-4, -11.9, 0), V(0, 0, 1), 2.4), False)
sketch18.addGeometry(Part.Circle(V(-4, -4, 0), V(0, 0, 1), 3.2), False)
sketch18.addGeometry(Part.Circle(V(-4, -4, 0), V(0, 0, 1), 2.4), False)
sketch18.addConstraint(Sketcher.Constraint("Coincident", 1, 3, 0, 3))
sketch18.addConstraint(Sketcher.Constraint("Coincident", 3, 3, 2, 3))
sketch18.addConstraint(Sketcher.Constraint("Coincident", 5, 3, 4, 3))
sketch18.addConstraint(Sketcher.Constraint("Coincident", 7, 3, 6, 3))
sketch18.addConstraint(Sketcher.Constraint("Coincident", 9, 3, 8, 3))
sketch18.addConstraint(Sketcher.Constraint("Coincident", 11, 3, 10, 3))
sketch18.addConstraint(Sketcher.Constraint("Coincident", 13, 3, 12, 3))
sketch18.addConstraint(Sketcher.Constraint("Equal", 0, 2))
sketch18.addConstraint(Sketcher.Constraint("Equal", 1, 3))
sketch18.addConstraint(Sketcher.Constraint("Equal", 2, 4))
sketch18.addConstraint(Sketcher.Constraint("Equal", 3, 5))
sketch18.addConstraint(Sketcher.Constraint("Equal", 4, 6))
sketch18.addConstraint(Sketcher.Constraint("Equal", 5, 7))
sketch18.addConstraint(Sketcher.Constraint("Equal", 6, 8))
sketch18.addConstraint(Sketcher.Constraint("Equal", 7, 9))
sketch18.addConstraint(Sketcher.Constraint("Equal", 8, 10))
sketch18.addConstraint(Sketcher.Constraint("Equal", 9, 11))
sketch18.addConstraint(Sketcher.Constraint("Equal", 10, 12))
sketch18.addConstraint(Sketcher.Constraint("Equal", 11, 13))
sketch18.addConstraint(Sketcher.Constraint("Vertical", 1, 3, 2, 3))
sketch18.addConstraint(Sketcher.Constraint("Vertical", 3, 3, 4, 3))
sketch18.addConstraint(Sketcher.Constraint("Vertical", 5, 3, 6, 3))
sketch18.addConstraint(Sketcher.Constraint("Vertical", 7, 3, 8, 3))
sketch18.addConstraint(Sketcher.Constraint("Vertical", 9, 3, 10, 3))
sketch18.addConstraint(Sketcher.Constraint("Vertical", 11, 3, 12, 3))
sketch18.addConstraint(Sketcher.Constraint("Diameter", 0, Q("6.46 mm")))
sketch18.addConstraint(Sketcher.Constraint("Diameter", 1, Q("4.74 mm")))
sketch18.addConstraint(Sketcher.Constraint("DistanceY", 8, 3, -1, 1, Q("19.9 mm")))
sketch18.addConstraint(Sketcher.Constraint("DistanceX", 0, 3, -1, 1, Q("3.98 mm")))
sketch18.addConstraint(Sketcher.Constraint("DistanceY", 0, 3, -1, 1, Q("51.74 mm")))
sketch18.addConstraint(Sketcher.Constraint("DistanceY", 2, 3, -1, 1, Q("43.78 mm")))
sketch18.addConstraint(Sketcher.Constraint("DistanceY", 4, 3, -1, 1, Q("35.82 mm")))
sketch18.addConstraint(Sketcher.Constraint("DistanceY", 6, 3, -1, 1, Q("27.86 mm")))
sketch18.addConstraint(Sketcher.Constraint("DistanceY", 10, 3, -1, 1, Q("11.94 mm")))
sketch18.addConstraint(Sketcher.Constraint("DistanceY", 12, 3, -1, 1, Q("3.98 mm")))
sketch18.setExpression("Constraints[25]", "Params.sketch18_diameter")
sketch18.setExpression("Constraints[26]", "Params.sketch18_diameter2")
pad17 = doc.addObject("PartDesign::Pad", "Pad016")
body.addObject(pad17)
pad17.Profile = sketch18
pad17.setExpression("Length", "Params.pad17_length")
doc.recompute()

fillet = doc.addObject("PartDesign::Fillet", "Fillet")
body.addObject(fillet)
fillet.Base = (pad17, ["Edge1"])
fillet.UseAllEdges = True
fillet.setExpression("Radius", "Params.fillet_radius")

doc.recompute()
